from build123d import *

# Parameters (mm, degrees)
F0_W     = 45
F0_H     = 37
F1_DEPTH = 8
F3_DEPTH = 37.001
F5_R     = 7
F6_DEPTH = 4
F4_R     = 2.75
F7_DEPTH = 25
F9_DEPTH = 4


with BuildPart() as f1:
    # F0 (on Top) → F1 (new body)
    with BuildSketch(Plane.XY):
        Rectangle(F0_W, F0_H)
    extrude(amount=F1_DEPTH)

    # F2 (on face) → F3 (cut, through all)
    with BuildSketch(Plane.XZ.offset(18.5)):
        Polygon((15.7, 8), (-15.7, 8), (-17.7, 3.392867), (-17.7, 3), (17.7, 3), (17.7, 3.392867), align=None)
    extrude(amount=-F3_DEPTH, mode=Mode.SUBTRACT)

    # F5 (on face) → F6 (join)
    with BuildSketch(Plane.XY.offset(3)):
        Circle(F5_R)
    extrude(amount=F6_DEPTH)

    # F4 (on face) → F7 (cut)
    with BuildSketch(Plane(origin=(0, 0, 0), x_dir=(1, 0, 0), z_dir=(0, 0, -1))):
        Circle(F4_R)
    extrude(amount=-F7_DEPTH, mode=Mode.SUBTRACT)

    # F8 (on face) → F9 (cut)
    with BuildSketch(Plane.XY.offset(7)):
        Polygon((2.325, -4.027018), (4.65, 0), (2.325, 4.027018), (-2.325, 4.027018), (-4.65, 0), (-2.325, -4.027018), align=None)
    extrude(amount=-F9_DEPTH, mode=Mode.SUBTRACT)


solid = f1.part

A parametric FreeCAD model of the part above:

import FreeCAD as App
import Part
import Sketcher
Q = App.Units.Quantity


def add_polygon(sketch, points):
    """Adds a closed chain of lines whose ends are joined by coincident constraints."""
    first, n = sketch.GeometryCount, len(points)
    for a, b in zip(points, points[1:] + points[:1]):
        sketch.addGeometry(Part.LineSegment(App.Vector(*a, 0), App.Vector(*b, 0)), False)
    for i in range(n):
        sketch.addConstraint(Sketcher.Constraint("Coincident", first + i, 2, first + (i + 1) % n, 1))

doc = App.newDocument("Part")
body = doc.addObject("PartDesign::Body", "Body")

# Sketch on XY plane
sketch1 = body.newObject("Sketcher::SketchObject", "Sketch")
sketch1.AttachmentSupport = (doc.getObject("XY_Plane"), [""])
sketch1.MapMode = "FlatFace"
add_polygon(sketch1, [(-22, 18), (-22, -18), (22, -18), (22, 18)])  # lines 0-3
sketch1.addConstraint([
    Sketcher.Constraint("Vertical", 0),
    Sketcher.Constraint("Horizontal", 1),
    Sketcher.Constraint("Vertical", 2),
    Sketcher.Constraint("Horizontal", 3),
    Sketcher.Constraint("Symmetric", 0, 2, 2, 2, -1, 1),
    Sketcher.Constraint("DistanceX", 1, 1, 1, 2, 45.0),
    Sketcher.Constraint("DistanceY", 0, 2, 0, 1, 37.0),
])
pad1 = body.newObject("PartDesign::Pad", "Pad")
pad1.Profile = sketch1
pad1.Length = 8

# Sketch on XZ plane
sketch2 = body.newObject("Sketcher::SketchObject", "Sketch001")
sketch2.AttachmentSupport = (doc.getObject("XZ_Plane"), [""])
sketch2.MapMode = "FlatFace"
sketch2.AttachmentOffset = App.Placement(App.Vector(0, 0, 18.5), App.Rotation())
add_polygon(sketch2, [(15.7, 8), (-15.7, 8), (-17.7, 3.39), (-17.7, 3), (17.7, 3), (17.7, 3.39)])  # lines 0-5
sketch2.addConstraint([
    Sketcher.Constraint("Horizontal", 0),
    Sketcher.Constraint("Vertical", 2),
    Sketcher.Constraint("Horizontal", 3),
    Sketcher.Constraint("Vertical", 4),
    Sketcher.Constraint("Symmetric", 1, 2, 4, 2, -2),
    Sketcher.Constraint("Equal", 1, 5),
    Sketcher.Constraint("DistanceX", 0, 2, 0, 1, 31.4),
    Sketcher.Constraint("DistanceX", 3, 1, 3, 2, 35.4),
    Sketcher.Constraint("DistanceY", -1, 1, 0, 2, 8.0),
    Sketcher.Constraint("DistanceY", -1, 1, 2, 2, 3.0),
    Sketcher.Constraint("DistanceY", 2, 2, 2, 1, 0.392867),
])
pocket1 = body.newObject("PartDesign::Pocket", "Pocket")
pocket1.Profile = sketch2
pocket1.Type = "ThroughAll"

# Sketch on XY plane
sketch3 = body.newObject("Sketcher::SketchObject", "Sketch002")
sketch3.AttachmentSupport = (doc.getObject("XY_Plane"), [""])
sketch3.MapMode = "FlatFace"
sketch3.AttachmentOffset = App.Placement(App.Vector(0, 0, 3), App.Rotation())
sketch3.addGeometry(Part.Circle(App.Vector(0, 0, 0), App.Vector(0, 0, 1), 7), False)
sketch3.addConstraint([
    Sketcher.Constraint("Coincident", 0, 3, -1, 1),
    Sketcher.Constraint("Diameter", 0, 14.0),
])
pad2 = body.newObject("PartDesign::Pad", "Pad001")
pad2.Profile = sketch3
pad2.Length = 4

# Sketch on XY plane
sketch4 = body.newObject("Sketcher::SketchObject", "Sketch003")
sketch4.AttachmentSupport = (doc.getObject("XY_Plane"), [""])
sketch4.MapMode = "FlatFace"
sketch4.addGeometry(Part.Circle(App.Vector(0, 0, 0), App.Vector(0, 0, 1), 2.8), False)
sketch4.addConstraint([
    Sketcher.Constraint("Coincident", 0, 3, -1, 1),
    Sketcher.Constraint("Diameter", 0, 5.5),
])
pocket2 = body.newObject("PartDesign::Pocket", "Pocket001")
pocket2.Profile = sketch4
pocket2.Length = 25
pocket2.Reversed = True

# Sketch on XY plane
sketch5 = body.newObject("Sketcher::SketchObject", "Sketch004")
sketch5.AttachmentSupport = (doc.getObject("XY_Plane"), [""])
sketch5.MapMode = "FlatFace"
sketch5.AttachmentOffset = App.Placement(App.Vector(0, 0, 7), App.Rotation())
add_polygon(sketch5, [(2.3, -4), (4.7, 0), (2.3, 4), (-2.3, 4), (-4.7, 0), (-2.3, -4)])  # lines 0-5
sketch5.addConstraint([
    Sketcher.Constraint("Horizontal", 2),
    Sketcher.Constraint("Horizontal", 5),
    Sketcher.Constraint("Symmetric", 0, 2, 3, 2, -1, 1),
    Sketcher.Constraint("Symmetric", 1, 2, 4, 2, -1, 1),
    Sketcher.Constraint("PointOnObject", 0, 2, -1),
    Sketcher.Constraint("Parallel", 0, 3),
    Sketcher.Constraint("Vertical", 2, 2, 4, 2),
    Sketcher.Constraint("Angle", 0, Q("59.999999 deg")),
    Sketcher.Constraint("DistanceX", 2, 2, 2, 1, 4.65),
    Sketcher.Constraint("DistanceX", 3, 2, 0, 2, 9.3),
])
pocket3 = body.newObject("PartDesign::Pocket", "Pocket002")
pocket3.Profile = sketch5
pocket3.Length = 4

doc.recompute()
